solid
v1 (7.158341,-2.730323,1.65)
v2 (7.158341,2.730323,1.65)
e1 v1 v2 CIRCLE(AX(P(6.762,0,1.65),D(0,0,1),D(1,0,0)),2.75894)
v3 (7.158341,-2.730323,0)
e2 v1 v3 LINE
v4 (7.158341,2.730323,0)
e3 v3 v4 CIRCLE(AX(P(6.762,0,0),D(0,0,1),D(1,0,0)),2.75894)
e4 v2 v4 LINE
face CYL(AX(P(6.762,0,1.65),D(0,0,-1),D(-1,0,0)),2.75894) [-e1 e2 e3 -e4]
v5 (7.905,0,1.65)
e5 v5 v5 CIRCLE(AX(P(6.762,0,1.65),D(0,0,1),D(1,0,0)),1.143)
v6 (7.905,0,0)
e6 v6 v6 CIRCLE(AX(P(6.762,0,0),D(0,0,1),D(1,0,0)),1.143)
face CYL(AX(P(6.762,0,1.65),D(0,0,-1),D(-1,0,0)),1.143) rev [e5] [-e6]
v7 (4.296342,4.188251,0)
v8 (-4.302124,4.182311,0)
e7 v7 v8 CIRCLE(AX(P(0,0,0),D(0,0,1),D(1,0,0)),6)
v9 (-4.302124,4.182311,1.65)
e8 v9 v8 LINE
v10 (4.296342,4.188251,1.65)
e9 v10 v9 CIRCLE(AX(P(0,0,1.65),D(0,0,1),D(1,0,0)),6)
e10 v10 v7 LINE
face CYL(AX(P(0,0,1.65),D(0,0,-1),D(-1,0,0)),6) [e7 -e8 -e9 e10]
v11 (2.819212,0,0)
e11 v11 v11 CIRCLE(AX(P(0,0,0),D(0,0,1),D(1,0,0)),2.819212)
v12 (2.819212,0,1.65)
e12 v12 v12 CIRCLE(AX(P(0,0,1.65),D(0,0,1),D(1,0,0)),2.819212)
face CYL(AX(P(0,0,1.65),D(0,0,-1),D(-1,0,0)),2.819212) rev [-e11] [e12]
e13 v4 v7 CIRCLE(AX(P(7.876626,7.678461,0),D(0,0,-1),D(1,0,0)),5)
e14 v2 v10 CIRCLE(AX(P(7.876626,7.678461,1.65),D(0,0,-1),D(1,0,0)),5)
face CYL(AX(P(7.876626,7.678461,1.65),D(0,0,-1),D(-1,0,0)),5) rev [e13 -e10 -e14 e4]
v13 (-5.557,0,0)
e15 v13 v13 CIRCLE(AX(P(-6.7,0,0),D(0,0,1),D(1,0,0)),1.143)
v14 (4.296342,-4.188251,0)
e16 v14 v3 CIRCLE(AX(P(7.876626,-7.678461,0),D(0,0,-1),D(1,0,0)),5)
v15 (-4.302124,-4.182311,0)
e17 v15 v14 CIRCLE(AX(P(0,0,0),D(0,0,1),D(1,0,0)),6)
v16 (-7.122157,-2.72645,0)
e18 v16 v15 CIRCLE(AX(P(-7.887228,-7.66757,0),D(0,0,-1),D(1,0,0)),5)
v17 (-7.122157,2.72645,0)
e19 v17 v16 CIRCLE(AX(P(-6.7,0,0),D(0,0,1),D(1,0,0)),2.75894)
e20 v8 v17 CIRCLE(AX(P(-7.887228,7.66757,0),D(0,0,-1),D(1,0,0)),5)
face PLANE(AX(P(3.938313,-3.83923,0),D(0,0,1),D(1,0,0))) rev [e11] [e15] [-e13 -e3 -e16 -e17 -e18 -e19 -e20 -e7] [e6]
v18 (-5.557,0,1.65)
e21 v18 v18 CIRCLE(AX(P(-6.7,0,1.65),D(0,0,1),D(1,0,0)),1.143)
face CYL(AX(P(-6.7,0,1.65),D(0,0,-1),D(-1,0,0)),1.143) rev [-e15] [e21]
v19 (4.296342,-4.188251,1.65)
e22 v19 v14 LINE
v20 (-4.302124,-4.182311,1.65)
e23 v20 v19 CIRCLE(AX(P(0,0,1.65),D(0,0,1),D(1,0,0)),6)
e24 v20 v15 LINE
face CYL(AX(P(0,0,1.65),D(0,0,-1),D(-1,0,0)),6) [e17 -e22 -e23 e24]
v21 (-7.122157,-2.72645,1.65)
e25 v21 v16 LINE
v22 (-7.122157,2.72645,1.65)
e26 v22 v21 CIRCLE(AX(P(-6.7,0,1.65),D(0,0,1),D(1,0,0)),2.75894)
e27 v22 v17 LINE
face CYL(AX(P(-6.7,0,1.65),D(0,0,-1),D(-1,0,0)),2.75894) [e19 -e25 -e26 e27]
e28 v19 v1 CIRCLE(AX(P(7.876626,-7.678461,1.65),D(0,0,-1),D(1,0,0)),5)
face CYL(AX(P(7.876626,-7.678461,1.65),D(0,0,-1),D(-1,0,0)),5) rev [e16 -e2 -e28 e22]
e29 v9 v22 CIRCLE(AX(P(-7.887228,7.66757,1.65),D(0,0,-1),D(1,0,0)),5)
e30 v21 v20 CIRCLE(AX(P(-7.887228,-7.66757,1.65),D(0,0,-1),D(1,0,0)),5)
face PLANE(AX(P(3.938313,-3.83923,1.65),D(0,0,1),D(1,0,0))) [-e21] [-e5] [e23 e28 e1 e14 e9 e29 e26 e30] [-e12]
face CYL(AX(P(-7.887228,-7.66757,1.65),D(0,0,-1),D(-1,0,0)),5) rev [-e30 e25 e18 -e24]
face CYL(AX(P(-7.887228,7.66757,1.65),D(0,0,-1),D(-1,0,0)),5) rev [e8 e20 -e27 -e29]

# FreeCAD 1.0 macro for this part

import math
import FreeCAD as App
import Part
import Sketcher

V = App.Vector
Q = App.Units.Quantity

doc = App.newDocument("Part")
body = doc.addObject("PartDesign::Body", "Body")

# Sketch on XY plane
sketch1 = doc.addObject("Sketcher::SketchObject", "Sketch")
body.addObject(sketch1)
sketch1.AttachmentSupport = (doc.XY_Plane, [""])
sketch1.MapMode = "FlatFace"
sketch1.addGeometry([
    Part.ArcOfCircle(Part.Circle(V(0, 0, 0), V(0, 0, 1), 6), math.radians(-135.81), math.radians(-129.82)),  # 0
    Part.ArcOfCircle(Part.Circle(V(0, 0, 0), V(0, 0, 1), 6), math.radians(-130), math.radians(-50)),  # 1
    Part.ArcOfCircle(Part.Circle(V(0, 0, 0), V(0, 0, 1), 6), math.radians(-50.18), math.radians(-44.27)),  # 2
    Part.ArcOfCircle(Part.Circle(V(7.9, -7.7, 0), V(0, 0, 1), 5), math.radians(98), math.radians(136)),  # 3
    Part.ArcOfCircle(Part.Circle(V(6.8, 0, 0), V(0, 0, 1), 2.8), math.radians(-82), math.radians(82)),  # 4
    Part.ArcOfCircle(Part.Circle(V(7.9, 7.7, 0), V(0, 0, 1), 5), math.radians(-136), math.radians(-98)),  # 5
    Part.ArcOfCircle(Part.Circle(V(0, 0, 0), V(0, 0, 1), 6), math.radians(44.27), math.radians(50.1)),  # 6
    Part.ArcOfCircle(Part.Circle(V(0, 0, 0), V(0, 0, 1), 6), math.radians(50), math.radians(130)),  # 7
    Part.ArcOfCircle(Part.Circle(V(0, 0, 0), V(0, 0, 1), 6), math.radians(129.75), math.radians(135.81)),  # 8
    Part.ArcOfCircle(Part.Circle(V(-7.9, 7.7, 0), V(0, 0, 1), 5), math.radians(-81), math.radians(-44)),  # 9
    Part.ArcOfCircle(Part.Circle(V(-6.7, 0, 0), V(0, 0, 1), 2.8), math.radians(99), math.radians(261)),  # 10
    Part.ArcOfCircle(Part.Circle(V(-7.9, -7.7, 0), V(0, 0, 1), 5), math.radians(44), math.radians(81)),  # 11
    Part.Circle(V(-6.7, 0, 0), V(0, 0, 1), 1.1),  # 12
    Part.Circle(V(0, 0, 0), V(0, 0, 1), 2.8),  # 13
    Part.Circle(V(6.8, 0, 0), V(0, 0, 1), 1.1),  # 14
], False)
sketch1.addConstraint([
    Sketcher.Constraint("Tangent", 0, 2, 1, 1),
    Sketcher.Constraint("Tangent", 1, 2, 2, 1),
    Sketcher.Constraint("Tangent", 2, 2, 3, 2),
    Sketcher.Constraint("Tangent", 3, 1, 4, 1),
    Sketcher.Constraint("Tangent", 4, 2, 5, 2),
    Sketcher.Constraint("Tangent", 5, 1, 6, 1),
    Sketcher.Constraint("Tangent", 6, 2, 7, 1),
    Sketcher.Constraint("Tangent", 7, 2, 8, 1),
    Sketcher.Constraint("Tangent", 8, 2, 9, 2),
    Sketcher.Constraint("Tangent", 9, 1, 10, 1),
    Sketcher.Constraint("Tangent", 10, 2, 11, 2),
    Sketcher.Constraint("Tangent", 11, 1, 0, 1),
    Sketcher.Constraint("Coincident", 0, 3, -1, 1),
    Sketcher.Constraint("Coincident", 2, 3, -1, 1),
    Sketcher.Constraint("Coincident", 6, 3, -1, 1),
    Sketcher.Constraint("Coincident", 8, 3, -1, 1),
    Sketcher.Constraint("Coincident", 13, 3, -1, 1),
    Sketcher.Constraint("Coincident", 12, 3, 10, 3),
    Sketcher.Constraint("Coincident", 14, 3, 4, 3),
    Sketcher.Constraint("Equal", 3, 5),
    Sketcher.Constraint("Equal", 2, 6),
    Sketcher.Constraint("Equal", 5, 9),
    Sketcher.Constraint("Equal", 4, 10),
    Sketcher.Constraint("Equal", 9, 11),
    Sketcher.Constraint("Equal", 12, 14),
    Sketcher.Constraint("PointOnObject", 4, 3, -1),
    Sketcher.Constraint("PointOnObject", 10, 3, -1),
    Sketcher.Constraint("Horizontal", 0, 2, 1, 2),
    Sketcher.Constraint("Radius", 0, Q("6 mm")),
    Sketcher.Constraint("Radius", 3, Q("5 mm")),
    Sketcher.Constraint("Diameter", 12, Q("2.286 mm")),
    Sketcher.Constraint("DistanceX", 10, 3, -1, 1, Q("6.7 mm")),
    Sketcher.Constraint("Radius", 4, Q("2.75894 mm")),
    Sketcher.Constraint("Diameter", 13, Q("5.638423 mm")),
    Sketcher.Constraint("DistanceX", -1, 1, 4, 3, Q("6.762 mm")),
    Sketcher.Constraint("DistanceY", 7, 2, 9, 3, Q("3.054199 mm")),
    Sketcher.Constraint("DistanceX", 0, 2, -1, 1, Q("3.842619 mm")),
    Sketcher.Constraint("DistanceX", 6, 2, 5, 1, Q("0.44736 mm")),
])
pad1 = doc.addObject("PartDesign::Pad", "Pad")
body.addObject(pad1)
pad1.Profile = sketch1
pad1.Length = 1.65

doc.recompute()
